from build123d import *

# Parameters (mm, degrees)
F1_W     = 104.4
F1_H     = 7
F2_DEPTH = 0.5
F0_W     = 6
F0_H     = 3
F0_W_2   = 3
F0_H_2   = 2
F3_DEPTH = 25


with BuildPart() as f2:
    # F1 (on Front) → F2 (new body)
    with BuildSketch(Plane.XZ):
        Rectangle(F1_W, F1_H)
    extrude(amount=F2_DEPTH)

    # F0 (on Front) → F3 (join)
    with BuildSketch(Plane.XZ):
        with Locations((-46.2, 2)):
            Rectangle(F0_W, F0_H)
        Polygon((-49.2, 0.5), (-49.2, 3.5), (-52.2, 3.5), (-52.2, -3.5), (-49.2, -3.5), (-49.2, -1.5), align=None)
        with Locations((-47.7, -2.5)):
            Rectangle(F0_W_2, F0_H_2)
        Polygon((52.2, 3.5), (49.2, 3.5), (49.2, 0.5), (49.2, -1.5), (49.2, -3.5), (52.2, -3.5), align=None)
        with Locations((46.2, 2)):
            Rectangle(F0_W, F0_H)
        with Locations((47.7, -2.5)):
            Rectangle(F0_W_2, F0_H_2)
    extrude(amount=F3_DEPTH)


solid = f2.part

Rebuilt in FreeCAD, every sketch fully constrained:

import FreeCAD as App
import Part
import Sketcher
Q = App.Units.Quantity


def add_polygon(sketch, points):
    """Adds a closed chain of lines whose ends are joined by coincident constraints."""
    first, n = sketch.GeometryCount, len(points)
    for a, b in zip(points, points[1:] + points[:1]):
        sketch.addGeometry(Part.LineSegment(App.Vector(*a, 0), App.Vector(*b, 0)), False)
    for i in range(n):
        sketch.addConstraint(Sketcher.Constraint("Coincident", first + i, 2, first + (i + 1) % n, 1))

doc = App.newDocument("Part")
body = doc.addObject("PartDesign::Body", "Body")

# Sketch on XZ plane
sketch1 = body.newObject("Sketcher::SketchObject", "Sketch")
sketch1.AttachmentSupport = (doc.getObject("XZ_Plane"), [""])
sketch1.MapMode = "FlatFace"
add_polygon(sketch1, [(-52, 4), (-52, -4), (52, -4), (52, 4)])  # lines 0-3
sketch1.addConstraint([
    Sketcher.Constraint("Vertical", 0),
    Sketcher.Constraint("Horizontal", 1),
    Sketcher.Constraint("Vertical", 2),
    Sketcher.Constraint("Horizontal", 3),
    Sketcher.Constraint("Symmetric", 0, 2, 2, 2, -1, 1),
    Sketcher.Constraint("DistanceY", 0, 2, 0, 1, Q("7 mm")),
    Sketcher.Constraint("DistanceX", 1, 1, 1, 2, Q("104.4 mm")),
])
pad1 = body.newObject("PartDesign::Pad", "Pad")
pad1.Profile = sketch1
pad1.Length = 0.5

# Sketch on XZ plane
sketch2 = body.newObject("Sketcher::SketchObject", "Sketch001")
sketch2.AttachmentSupport = (doc.getObject("XZ_Plane"), [""])
sketch2.MapMode = "FlatFace"
add_polygon(sketch2, [(-49.2, 0.5), (-43.2, 0.5), (-43.2, 3.5), (-52.2, 3.5), (-52.2, -3.5), (-46.2, -3.5), (-46.2, -1.5), (-49.2, -1.5)])  # lines 0-7
add_polygon(sketch2, [(52.2, 3.5), (43.2, 3.5), (43.2, 0.5), (49.2, 0.5), (49.2, -1.5), (46.2, -1.5), (46.2, -3.5), (52.2, -3.5)])  # lines 8-15
sketch2.addConstraint([
    Sketcher.Constraint("Horizontal", 0),
    Sketcher.Constraint("Vertical", 1),
    Sketcher.Constraint("Horizontal", 2),
    Sketcher.Constraint("Vertical", 3),
    Sketcher.Constraint("Horizontal", 4),
    Sketcher.Constraint("Vertical", 5),
    Sketcher.Constraint("Horizontal", 6),
    Sketcher.Constraint("Vertical", 7),
    Sketcher.Constraint("Horizontal", 8),
    Sketcher.Constraint("Vertical", 9),
    Sketcher.Constraint("Horizontal", 10),
    Sketcher.Constraint("Vertical", 11),
    Sketcher.Constraint("Horizontal", 12),
    Sketcher.Constraint("Vertical", 13),
    Sketcher.Constraint("Horizontal", 14),
    Sketcher.Constraint("Vertical", 15),
    Sketcher.Constraint("Symmetric", 2, 2, 14, 2, -1, 1),
    Sketcher.Constraint("Symmetric", 1, 2, 8, 2, -2),
    Sketcher.Constraint("Symmetric", 7, 2, 10, 2, -2),
    Sketcher.Constraint("Symmetric", 5, 2, 12, 2, -2),
    Sketcher.Constraint("Horizontal", 4, 2, 13, 2),
    Sketcher.Constraint("Equal", 0, 4),
    Sketcher.Constraint("Equal", 12, 1),
    Sketcher.Constraint("Equal", 5, 7),
    Sketcher.Constraint("DistanceX", 0, 1, 0, 2, Q("6 mm")),
    Sketcher.Constraint("DistanceX", 2, 2, 2, 1, Q("9 mm")),
    Sketcher.Constraint("DistanceY", 3, 2, 3, 1, Q("7 mm")),
    Sketcher.Constraint("DistanceX", 0, 2, -1, 1, Q("43.2 mm")),
])
pad2 = body.newObject("PartDesign::Pad", "Pad001")
pad2.Profile = sketch2
pad2.Length = 25

doc.recompute()
